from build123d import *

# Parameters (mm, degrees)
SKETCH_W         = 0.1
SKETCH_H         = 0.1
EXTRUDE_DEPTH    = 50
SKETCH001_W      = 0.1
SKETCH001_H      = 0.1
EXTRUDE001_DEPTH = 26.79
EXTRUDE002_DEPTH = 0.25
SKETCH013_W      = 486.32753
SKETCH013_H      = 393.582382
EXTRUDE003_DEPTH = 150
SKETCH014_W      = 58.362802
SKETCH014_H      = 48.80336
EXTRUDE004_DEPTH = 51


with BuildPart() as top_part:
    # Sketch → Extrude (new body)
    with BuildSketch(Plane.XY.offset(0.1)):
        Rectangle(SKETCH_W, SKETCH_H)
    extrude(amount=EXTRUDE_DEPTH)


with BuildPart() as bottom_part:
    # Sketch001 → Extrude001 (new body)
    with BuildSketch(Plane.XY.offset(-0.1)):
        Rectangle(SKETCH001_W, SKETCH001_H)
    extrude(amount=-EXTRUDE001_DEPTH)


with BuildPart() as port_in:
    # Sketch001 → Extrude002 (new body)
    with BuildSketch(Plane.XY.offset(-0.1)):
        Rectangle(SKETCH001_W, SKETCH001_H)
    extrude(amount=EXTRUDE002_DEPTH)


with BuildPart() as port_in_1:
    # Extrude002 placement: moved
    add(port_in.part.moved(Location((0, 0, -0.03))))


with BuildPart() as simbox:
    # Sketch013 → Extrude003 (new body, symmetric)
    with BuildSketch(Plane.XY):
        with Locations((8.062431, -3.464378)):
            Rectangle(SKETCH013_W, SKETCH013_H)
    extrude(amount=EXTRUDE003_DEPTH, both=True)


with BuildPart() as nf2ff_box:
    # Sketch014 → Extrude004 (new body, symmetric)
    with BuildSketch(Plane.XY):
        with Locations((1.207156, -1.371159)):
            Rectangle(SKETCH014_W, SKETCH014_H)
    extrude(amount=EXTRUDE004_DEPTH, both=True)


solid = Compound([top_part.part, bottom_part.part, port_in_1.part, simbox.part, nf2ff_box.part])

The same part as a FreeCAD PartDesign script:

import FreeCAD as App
import Part
import Sketcher

V = App.Vector
Q = App.Units.Quantity

doc = App.newDocument("Part")
body = doc.addObject("PartDesign::Body", "Body")

# Sketch on XY plane
sketch1 = body.newObject("Sketcher::SketchObject", "Sketch")
sketch1.AttachmentSupport = (doc.getObject("XY_Plane"), [""])
sketch1.MapMode = "FlatFace"
sketch1.AttachmentOffset = App.Placement(V(0, 0, 0.1), App.Rotation())
sketch1.addGeometry(Part.LineSegment(V(-0.05, 0.05, 0), V(-0.05, -0.05, 0)), False)
sketch1.addGeometry(Part.LineSegment(V(-0.05, -0.05, 0), V(0.05, -0.05, 0)), False)
sketch1.addGeometry(Part.LineSegment(V(0.05, -0.05, 0), V(0.05, 0.05, 0)), False)
sketch1.addGeometry(Part.LineSegment(V(0.05, 0.05, 0), V(-0.05, 0.05, 0)), False)
sketch1.addConstraint(Sketcher.Constraint("Coincident", 0, 2, 1, 1))
sketch1.addConstraint(Sketcher.Constraint("Coincident", 1, 2, 2, 1))
sketch1.addConstraint(Sketcher.Constraint("Coincident", 2, 2, 3, 1))
sketch1.addConstraint(Sketcher.Constraint("Coincident", 3, 2, 0, 1))
sketch1.addConstraint(Sketcher.Constraint("Vertical", 0))
sketch1.addConstraint(Sketcher.Constraint("Horizontal", 1))
sketch1.addConstraint(Sketcher.Constraint("Vertical", 2))
sketch1.addConstraint(Sketcher.Constraint("Horizontal", 3))
sketch1.addConstraint(Sketcher.Constraint("Symmetric", 0, 2, 2, 2, -1, 1))
sketch1.addConstraint(Sketcher.Constraint("Equal", 3, 0))
sketch1.addConstraint(Sketcher.Constraint("DistanceX", 1, 1, 1, 2, Q("0.1 mm")))
pad1 = body.newObject("PartDesign::Pad", "Pad")
pad1.Profile = sketch1
pad1.Length = 50
body2 = doc.addObject("PartDesign::Body", "Body001")

# Sketch on XY plane
sketch2 = body2.newObject("Sketcher::SketchObject", "Sketch001")
sketch2.AttachmentSupport = (doc.getObject("XY_Plane001"), [""])
sketch2.MapMode = "FlatFace"
sketch2.AttachmentOffset = App.Placement(V(0, 0, -0.1), App.Rotation())
sketch2.addGeometry(Part.LineSegment(V(-0.05, 0.05, 0), V(-0.05, -0.05, 0)), False)
sketch2.addGeometry(Part.LineSegment(V(-0.05, -0.05, 0), V(0.05, -0.05, 0)), False)
sketch2.addGeometry(Part.LineSegment(V(0.05, -0.05, 0), V(0.05, 0.05, 0)), False)
sketch2.addGeometry(Part.LineSegment(V(0.05, 0.05, 0), V(-0.05, 0.05, 0)), False)
sketch2.addConstraint(Sketcher.Constraint("Coincident", 0, 2, 1, 1))
sketch2.addConstraint(Sketcher.Constraint("Coincident", 1, 2, 2, 1))
sketch2.addConstraint(Sketcher.Constraint("Coincident", 2, 2, 3, 1))
sketch2.addConstraint(Sketcher.Constraint("Coincident", 3, 2, 0, 1))
sketch2.addConstraint(Sketcher.Constraint("Vertical", 0))
sketch2.addConstraint(Sketcher.Constraint("Horizontal", 1))
sketch2.addConstraint(Sketcher.Constraint("Vertical", 2))
sketch2.addConstraint(Sketcher.Constraint("Horizontal", 3))
sketch2.addConstraint(Sketcher.Constraint("Symmetric", 0, 2, 2, 2, -1, 1))
sketch2.addConstraint(Sketcher.Constraint("Equal", 3, 0))
sketch2.addConstraint(Sketcher.Constraint("DistanceX", 1, 1, 1, 2, Q("0.1 mm")))
pad2 = body2.newObject("PartDesign::Pad", "Pad001")
pad2.Profile = sketch2
pad2.Length = 26.79
pad2.Reversed = True
body3 = doc.addObject("PartDesign::Body", "Body002")

# Sketch on XY plane
sketch3 = body3.newObject("Sketcher::SketchObject", "Sketch002")
sketch3.AttachmentSupport = (doc.getObject("XY_Plane002"), [""])
sketch3.MapMode = "FlatFace"
sketch3.AttachmentOffset = App.Placement(V(0, 0, -0.1), App.Rotation())
sketch3.addGeometry(Part.LineSegment(V(-0.05, 0.05, 0), V(-0.05, -0.05, 0)), False)
sketch3.addGeometry(Part.LineSegment(V(-0.05, -0.05, 0), V(0.05, -0.05, 0)), False)
sketch3.addGeometry(Part.LineSegment(V(0.05, -0.05, 0), V(0.05, 0.05, 0)), False)
sketch3.addGeometry(Part.LineSegment(V(0.05, 0.05, 0), V(-0.05, 0.05, 0)), False)
sketch3.addConstraint(Sketcher.Constraint("Coincident", 0, 2, 1, 1))
sketch3.addConstraint(Sketcher.Constraint("Coincident", 1, 2, 2, 1))
sketch3.addConstraint(Sketcher.Constraint("Coincident", 2, 2, 3, 1))
sketch3.addConstraint(Sketcher.Constraint("Coincident", 3, 2, 0, 1))
sketch3.addConstraint(Sketcher.Constraint("Vertical", 0))
sketch3.addConstraint(Sketcher.Constraint("Horizontal", 1))
sketch3.addConstraint(Sketcher.Constraint("Vertical", 2))
sketch3.addConstraint(Sketcher.Constraint("Horizontal", 3))
sketch3.addConstraint(Sketcher.Constraint("Symmetric", 0, 2, 2, 2, -1, 1))
sketch3.addConstraint(Sketcher.Constraint("Equal", 3, 0))
sketch3.addConstraint(Sketcher.Constraint("DistanceX", 1, 1, 1, 2, Q("0.1 mm")))
pad3 = body3.newObject("PartDesign::Pad", "Pad002")
pad3.Profile = sketch3
pad3.Length = 0.25
body4 = doc.addObject("PartDesign::Body", "Body003")
doc.recompute()

body3.Placement = App.Placement(V(0, 0, -0.03), App.Rotation(V(0, 0, 1), 0))
boolean = body4.newObject("PartDesign::Boolean", "Boolean")
boolean.Type = "Fuse"
boolean.addObjects([body3])
body5 = doc.addObject("PartDesign::Body", "Body004")

# Sketch on XY plane
sketch4 = body5.newObject("Sketcher::SketchObject", "Sketch003")
sketch4.AttachmentSupport = (doc.getObject("XY_Plane004"), [""])
sketch4.MapMode = "FlatFace"
sketch4.addGeometry(Part.LineSegment(V(-235, 193, 0), V(-235, -200, 0)), False)
sketch4.addGeometry(Part.LineSegment(V(-235, -200, 0), V(251, -200, 0)), False)
sketch4.addGeometry(Part.LineSegment(V(251, -200, 0), V(251, 193, 0)), False)
sketch4.addGeometry(Part.LineSegment(V(251, 193, 0), V(-235, 193, 0)), False)
sketch4.addConstraint(Sketcher.Constraint("Coincident", 0, 2, 1, 1))
sketch4.addConstraint(Sketcher.Constraint("Coincident", 1, 2, 2, 1))
sketch4.addConstraint(Sketcher.Constraint("Coincident", 2, 2, 3, 1))
sketch4.addConstraint(Sketcher.Constraint("Coincident", 3, 2, 0, 1))
sketch4.addConstraint(Sketcher.Constraint("Vertical", 0))
sketch4.addConstraint(Sketcher.Constraint("Horizontal", 1))
sketch4.addConstraint(Sketcher.Constraint("Vertical", 2))
sketch4.addConstraint(Sketcher.Constraint("Horizontal", 3))
sketch4.addConstraint(Sketcher.Constraint("DistanceX", 1, 1, 1, 2, Q("486.32753 mm")))
sketch4.addConstraint(Sketcher.Constraint("DistanceY", 0, 2, 0, 1, Q("393.582382 mm")))
sketch4.addConstraint(Sketcher.Constraint("DistanceY", 0, 2, -1, 1, Q("200.255569 mm")))
sketch4.addConstraint(Sketcher.Constraint("DistanceX", 0, 2, -1, 1, Q("235.101334 mm")))
pad4 = body5.newObject("PartDesign::Pad", "Pad003")
pad4.Profile = sketch4
pad4.Length = 300
pad4.Midplane = True
body6 = doc.addObject("PartDesign::Body", "Body005")

# Sketch on XY plane
sketch5 = body6.newObject("Sketcher::SketchObject", "Sketch004")
sketch5.AttachmentSupport = (doc.getObject("XY_Plane005"), [""])
sketch5.MapMode = "FlatFace"
sketch5.addGeometry(Part.LineSegment(V(-28, 23, 0), V(-28, -26, 0)), False)
sketch5.addGeometry(Part.LineSegment(V(-28, -26, 0), V(30, -26, 0)), False)
sketch5.addGeometry(Part.LineSegment(V(30, -26, 0), V(30, 23, 0)), False)
sketch5.addGeometry(Part.LineSegment(V(30, 23, 0), V(-28, 23, 0)), False)
sketch5.addConstraint(Sketcher.Constraint("Coincident", 0, 2, 1, 1))
sketch5.addConstraint(Sketcher.Constraint("Coincident", 1, 2, 2, 1))
sketch5.addConstraint(Sketcher.Constraint("Coincident", 2, 2, 3, 1))
sketch5.addConstraint(Sketcher.Constraint("Coincident", 3, 2, 0, 1))
sketch5.addConstraint(Sketcher.Constraint("Vertical", 0))
sketch5.addConstraint(Sketcher.Constraint("Horizontal", 1))
sketch5.addConstraint(Sketcher.Constraint("Vertical", 2))
sketch5.addConstraint(Sketcher.Constraint("Horizontal", 3))
sketch5.addConstraint(Sketcher.Constraint("DistanceY", 0, 2, 0, 1, Q("48.80336 mm")))
sketch5.addConstraint(Sketcher.Constraint("DistanceX", 1, 1, 1, 2, Q("58.362802 mm")))
sketch5.addConstraint(Sketcher.Constraint("DistanceY", 0, 2, -1, 1, Q("25.772839 mm")))
sketch5.addConstraint(Sketcher.Constraint("DistanceX", 0, 2, -1, 1, Q("27.974245 mm")))
pad5 = body6.newObject("PartDesign::Pad", "Pad004")
pad5.Profile = sketch5
pad5.Length = 102
pad5.Midplane = True

doc.recompute()
